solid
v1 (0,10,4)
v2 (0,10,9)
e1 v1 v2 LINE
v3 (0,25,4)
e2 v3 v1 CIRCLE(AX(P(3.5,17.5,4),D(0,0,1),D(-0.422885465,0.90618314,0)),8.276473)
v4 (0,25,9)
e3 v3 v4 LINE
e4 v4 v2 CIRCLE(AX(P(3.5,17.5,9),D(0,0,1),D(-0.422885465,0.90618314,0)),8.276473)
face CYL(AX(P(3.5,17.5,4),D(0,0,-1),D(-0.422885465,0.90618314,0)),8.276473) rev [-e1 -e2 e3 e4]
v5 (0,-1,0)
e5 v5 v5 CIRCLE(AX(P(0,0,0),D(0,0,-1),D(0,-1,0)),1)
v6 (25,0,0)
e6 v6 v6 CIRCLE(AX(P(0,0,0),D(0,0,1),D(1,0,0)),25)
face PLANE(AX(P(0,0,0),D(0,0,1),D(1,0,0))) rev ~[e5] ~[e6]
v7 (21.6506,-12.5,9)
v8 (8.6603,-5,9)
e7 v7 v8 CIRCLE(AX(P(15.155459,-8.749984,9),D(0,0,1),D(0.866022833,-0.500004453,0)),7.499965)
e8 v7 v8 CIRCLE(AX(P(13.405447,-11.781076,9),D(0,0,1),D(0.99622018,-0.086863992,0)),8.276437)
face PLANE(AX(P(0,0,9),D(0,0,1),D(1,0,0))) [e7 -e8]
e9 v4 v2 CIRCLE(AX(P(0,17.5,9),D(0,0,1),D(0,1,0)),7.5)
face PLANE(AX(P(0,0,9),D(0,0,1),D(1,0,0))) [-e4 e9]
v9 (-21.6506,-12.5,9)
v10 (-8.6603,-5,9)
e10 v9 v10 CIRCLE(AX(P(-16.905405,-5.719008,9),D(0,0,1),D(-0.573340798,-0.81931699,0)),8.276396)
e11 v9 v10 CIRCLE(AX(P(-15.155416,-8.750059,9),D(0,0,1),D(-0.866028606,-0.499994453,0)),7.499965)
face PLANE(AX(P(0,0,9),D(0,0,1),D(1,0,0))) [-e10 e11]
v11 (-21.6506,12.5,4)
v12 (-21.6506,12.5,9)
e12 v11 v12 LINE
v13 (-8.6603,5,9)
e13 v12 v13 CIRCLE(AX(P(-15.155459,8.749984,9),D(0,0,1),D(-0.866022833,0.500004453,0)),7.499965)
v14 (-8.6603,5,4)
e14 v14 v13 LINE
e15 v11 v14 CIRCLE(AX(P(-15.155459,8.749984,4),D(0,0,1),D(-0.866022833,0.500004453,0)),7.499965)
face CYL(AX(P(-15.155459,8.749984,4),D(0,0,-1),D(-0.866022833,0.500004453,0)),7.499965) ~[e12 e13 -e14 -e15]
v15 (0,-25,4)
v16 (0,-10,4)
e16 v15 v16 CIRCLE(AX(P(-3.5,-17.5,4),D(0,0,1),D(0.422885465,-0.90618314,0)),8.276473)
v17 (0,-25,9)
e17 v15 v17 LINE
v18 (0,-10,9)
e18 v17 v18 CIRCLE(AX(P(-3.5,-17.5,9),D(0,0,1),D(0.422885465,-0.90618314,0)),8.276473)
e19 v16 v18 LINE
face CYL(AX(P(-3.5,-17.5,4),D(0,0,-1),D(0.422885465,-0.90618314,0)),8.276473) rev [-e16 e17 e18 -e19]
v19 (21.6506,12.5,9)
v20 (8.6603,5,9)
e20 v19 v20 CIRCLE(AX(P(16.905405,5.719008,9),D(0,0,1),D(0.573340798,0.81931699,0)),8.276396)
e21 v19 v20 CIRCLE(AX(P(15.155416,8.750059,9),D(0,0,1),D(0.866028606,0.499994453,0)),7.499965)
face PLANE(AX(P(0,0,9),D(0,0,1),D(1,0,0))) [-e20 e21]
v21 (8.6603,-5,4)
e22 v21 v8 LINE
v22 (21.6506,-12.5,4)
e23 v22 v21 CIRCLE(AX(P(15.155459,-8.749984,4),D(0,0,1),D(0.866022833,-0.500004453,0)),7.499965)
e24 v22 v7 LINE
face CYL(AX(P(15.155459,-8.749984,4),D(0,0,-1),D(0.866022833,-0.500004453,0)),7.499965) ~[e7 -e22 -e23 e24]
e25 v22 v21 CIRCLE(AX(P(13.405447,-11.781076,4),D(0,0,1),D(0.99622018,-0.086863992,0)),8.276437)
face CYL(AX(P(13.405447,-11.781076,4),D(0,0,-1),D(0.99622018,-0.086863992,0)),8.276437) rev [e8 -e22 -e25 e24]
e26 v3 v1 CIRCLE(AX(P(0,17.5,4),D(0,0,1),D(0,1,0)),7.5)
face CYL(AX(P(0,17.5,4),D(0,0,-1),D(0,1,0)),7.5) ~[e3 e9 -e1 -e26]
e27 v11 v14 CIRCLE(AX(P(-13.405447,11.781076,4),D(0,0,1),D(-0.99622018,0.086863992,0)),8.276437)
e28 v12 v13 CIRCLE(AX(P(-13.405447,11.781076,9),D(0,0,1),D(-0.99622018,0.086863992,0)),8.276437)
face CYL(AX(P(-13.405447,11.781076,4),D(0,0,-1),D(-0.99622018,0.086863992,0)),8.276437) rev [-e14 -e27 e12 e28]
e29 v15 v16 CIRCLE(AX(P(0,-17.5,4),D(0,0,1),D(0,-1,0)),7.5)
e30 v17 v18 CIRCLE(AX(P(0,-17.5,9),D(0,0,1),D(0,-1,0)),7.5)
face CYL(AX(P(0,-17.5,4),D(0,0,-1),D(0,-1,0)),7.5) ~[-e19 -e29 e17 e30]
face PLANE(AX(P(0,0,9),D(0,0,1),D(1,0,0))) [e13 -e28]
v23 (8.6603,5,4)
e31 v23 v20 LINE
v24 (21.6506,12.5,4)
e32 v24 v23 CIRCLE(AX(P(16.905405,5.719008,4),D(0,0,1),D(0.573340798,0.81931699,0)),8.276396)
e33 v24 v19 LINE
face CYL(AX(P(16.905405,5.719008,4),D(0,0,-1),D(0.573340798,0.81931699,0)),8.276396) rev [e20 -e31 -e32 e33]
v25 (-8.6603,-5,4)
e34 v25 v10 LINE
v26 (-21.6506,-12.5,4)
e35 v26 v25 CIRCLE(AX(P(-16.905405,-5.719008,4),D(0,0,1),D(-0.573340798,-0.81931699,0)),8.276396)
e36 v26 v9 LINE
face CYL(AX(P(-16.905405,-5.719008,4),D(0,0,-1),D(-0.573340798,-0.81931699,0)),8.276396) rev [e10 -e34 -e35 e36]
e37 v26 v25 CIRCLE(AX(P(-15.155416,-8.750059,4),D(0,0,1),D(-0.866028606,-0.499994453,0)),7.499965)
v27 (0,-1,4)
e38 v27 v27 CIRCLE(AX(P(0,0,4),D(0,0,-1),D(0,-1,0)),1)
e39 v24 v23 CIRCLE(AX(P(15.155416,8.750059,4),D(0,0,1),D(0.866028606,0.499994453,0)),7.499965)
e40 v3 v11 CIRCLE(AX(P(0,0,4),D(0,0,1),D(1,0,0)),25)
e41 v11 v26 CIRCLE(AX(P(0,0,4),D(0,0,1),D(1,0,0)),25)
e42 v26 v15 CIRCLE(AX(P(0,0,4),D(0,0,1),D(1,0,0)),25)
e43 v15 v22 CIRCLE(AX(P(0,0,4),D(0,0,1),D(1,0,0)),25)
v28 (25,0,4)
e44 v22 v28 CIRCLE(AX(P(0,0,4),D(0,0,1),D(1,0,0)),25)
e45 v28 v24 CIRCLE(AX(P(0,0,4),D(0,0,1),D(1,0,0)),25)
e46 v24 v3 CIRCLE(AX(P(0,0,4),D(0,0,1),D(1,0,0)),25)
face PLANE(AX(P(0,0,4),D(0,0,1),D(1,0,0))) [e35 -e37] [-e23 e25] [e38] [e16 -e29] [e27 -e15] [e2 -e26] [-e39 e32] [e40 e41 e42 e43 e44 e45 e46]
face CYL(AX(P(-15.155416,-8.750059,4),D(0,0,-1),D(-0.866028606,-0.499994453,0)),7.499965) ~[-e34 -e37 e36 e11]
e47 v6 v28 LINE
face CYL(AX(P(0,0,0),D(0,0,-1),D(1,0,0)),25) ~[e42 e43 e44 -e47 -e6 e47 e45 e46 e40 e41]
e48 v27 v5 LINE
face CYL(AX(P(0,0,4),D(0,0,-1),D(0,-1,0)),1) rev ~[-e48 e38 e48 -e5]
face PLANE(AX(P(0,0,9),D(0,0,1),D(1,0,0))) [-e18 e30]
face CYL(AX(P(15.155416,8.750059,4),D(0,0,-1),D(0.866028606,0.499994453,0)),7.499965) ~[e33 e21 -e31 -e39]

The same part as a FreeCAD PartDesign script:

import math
import FreeCAD as App
import Part
import Sketcher
from FreeCAD import Vector
Q = App.Units.Quantity

doc = App.newDocument("Part")
body = doc.addObject("PartDesign::Body", "Body")

sketch1 = doc.addObject("Sketcher::SketchObject", "Sketch")
body.addObject(sketch1)
sketch1.AttachmentSupport = (doc.XY_Plane, [""])
sketch1.MapMode = "FlatFace"
sketch1.addGeometry(Part.Circle(Vector(0, 0, 0), Vector(0, 0, 1), 25), False)
sketch1.addConstraint([
    Sketcher.Constraint("Coincident", 0, 3, -1, 1),
    Sketcher.Constraint("Diameter", 0, Q("50 mm")),
])
pad1 = doc.addObject("PartDesign::Pad", "Pad")
body.addObject(pad1)
pad1.Profile = sketch1
pad1.Length = 4

sketch2 = doc.addObject("Sketcher::SketchObject", "Sketch001")
body.addObject(sketch2)
sketch2.AttachmentSupport = (doc.XY_Plane, [""])
sketch2.MapMode = "FlatFace"
sketch2.AttachmentOffset = App.Placement(Vector(0, 0, 4), App.Rotation())
sketch2.addGeometry([
    Part.ArcOfCircle(Part.Circle(Vector(15, 9, 0), Vector(0, 0, 1), 8), math.radians(30), math.radians(210)),
    Part.ArcOfCircle(Part.Circle(Vector(17, 6, 0), Vector(0, 0, 1), 8), math.radians(55), math.radians(185)),
    Part.ArcOfCircle(Part.Circle(Vector(15, -9, 0), Vector(0, 0, 1), 8), math.radians(-30), math.radians(150)),
    Part.ArcOfCircle(Part.Circle(Vector(13, -12, 0), Vector(0, 0, 1), 8), math.radians(-5), math.radians(125)),
    Part.ArcOfCircle(Part.Circle(Vector(0, 18, 0), Vector(0, 0, 1), 8), math.radians(90), math.radians(270)),
    Part.ArcOfCircle(Part.Circle(Vector(4, 18, 0), Vector(0, 0, 1), 8), math.radians(115), math.radians(245)),
    Part.ArcOfCircle(Part.Circle(Vector(0, -18, 0), Vector(0, 0, 1), 8), math.radians(-90), math.radians(90)),
    Part.ArcOfCircle(Part.Circle(Vector(-4, -18, 0), Vector(0, 0, 1), 8), math.radians(-65), math.radians(65)),
    Part.ArcOfCircle(Part.Circle(Vector(-15, 9, 0), Vector(0, 0, 1), 8), math.radians(150), math.radians(330)),
    Part.ArcOfCircle(Part.Circle(Vector(-13, 12, 0), Vector(0, 0, 1), 8), math.radians(175), math.radians(305)),
    Part.ArcOfCircle(Part.Circle(Vector(-15, -9, 0), Vector(0, 0, 1), 8), math.radians(-150), math.radians(30)),
    Part.ArcOfCircle(Part.Circle(Vector(-17, -6, 0), Vector(0, 0, 1), 8), math.radians(-125), math.radians(5)),
], False)
sketch2.addConstraint([
    Sketcher.Constraint("Coincident", 0, 1, 1, 1),
    Sketcher.Constraint("Coincident", 1, 2, 0, 2),
    Sketcher.Constraint("Coincident", 2, 1, 3, 1),
    Sketcher.Constraint("Coincident", 3, 2, 2, 2),
    Sketcher.Constraint("Coincident", 4, 1, 5, 1),
    Sketcher.Constraint("Coincident", 5, 2, 4, 2),
    Sketcher.Constraint("Coincident", 6, 1, 7, 1),
    Sketcher.Constraint("Coincident", 7, 2, 6, 2),
    Sketcher.Constraint("Coincident", 8, 1, 9, 1),
    Sketcher.Constraint("Coincident", 9, 2, 8, 2),
    Sketcher.Constraint("Coincident", 10, 1, 11, 1),
    Sketcher.Constraint("Coincident", 11, 2, 10, 2),
    Sketcher.Constraint("Equal", 0, 2),
    Sketcher.Constraint("Equal", 1, 3),
    Sketcher.Constraint("Equal", 2, 4),
    Sketcher.Constraint("Equal", 3, 5),
    Sketcher.Constraint("Equal", 4, 6),
    Sketcher.Constraint("Equal", 5, 7),
    Sketcher.Constraint("Equal", 6, 8),
    Sketcher.Constraint("Equal", 7, 9),
    Sketcher.Constraint("Equal", 8, 10),
    Sketcher.Constraint("Equal", 9, 11),
    Sketcher.Constraint("Symmetric", 4, 3, 6, 3, -1, 1),
    Sketcher.Constraint("Symmetric", 5, 3, 7, 3, -1, 1),
    Sketcher.Constraint("Symmetric", 2, 3, 8, 3, -1, 1),
    Sketcher.Constraint("Symmetric", 3, 3, 9, 3, -1, 1),
    Sketcher.Constraint("Symmetric", 0, 3, 10, 3, -1, 1),
    Sketcher.Constraint("Symmetric", 1, 3, 11, 3, -1, 1),
    Sketcher.Constraint("Symmetric", 0, 3, 8, 3, -2),
    Sketcher.Constraint("PointOnObject", 4, 3, -2),
    Sketcher.Constraint("PointOnObject", 4, 1, -2),
    Sketcher.Constraint("PointOnObject", 5, 2, -2),
    Sketcher.Constraint("Horizontal", 0, 1, 8, 1),
    Sketcher.Constraint("Horizontal", 1, 2, 9, 2),
    Sketcher.Constraint("DistanceY", 1, 2, 4, 1, Q("20 mm")),
    Sketcher.Constraint("DistanceX", -1, 1, 5, 3, Q("3.5 mm")),
    Sketcher.Constraint("Radius", 0, Q("7.5 mm")),
    Sketcher.Constraint("DistanceX", 3, 3, 1, 3, Q("3.5 mm")),
    Sketcher.Constraint("DistanceY", -1, 1, 1, 2, Q("5 mm")),
    Sketcher.Constraint("DistanceY", 2, 3, 0, 3, Q("17.5 mm")),
    Sketcher.Constraint("DistanceX", -1, 1, 0, 3, Q("15.1554 mm")),
])
pad2 = doc.addObject("PartDesign::Pad", "Pad001")
body.addObject(pad2)
pad2.Profile = sketch2
pad2.Length = 5

sketch3 = doc.addObject("Sketcher::SketchObject", "Sketch002")
body.addObject(sketch3)
sketch3.AttachmentSupport = (doc.XY_Plane, [""])
sketch3.MapMode = "FlatFace"
sketch3.AttachmentOffset = App.Placement(Vector(0, 0, 4), App.Rotation())
sketch3.addGeometry(Part.Circle(Vector(0, 0, 0), Vector(0, 0, 1), 1), False)
sketch3.addConstraint([
    Sketcher.Constraint("Coincident", 0, 3, -1, 1),
    Sketcher.Constraint("Diameter", 0, Q("2 mm")),
])
doc.recompute()
hole = doc.addObject("PartDesign::Hole", "Hole")
body.addObject(hole)
hole.Profile = sketch3
hole.ThreadType = "None"
hole.Diameter = 2
hole.DepthType = "Dimension"
hole.Depth = 8.8
hole.DrillPoint = "Angled"
hole.DrillPointAngle = 118

doc.recompute()
